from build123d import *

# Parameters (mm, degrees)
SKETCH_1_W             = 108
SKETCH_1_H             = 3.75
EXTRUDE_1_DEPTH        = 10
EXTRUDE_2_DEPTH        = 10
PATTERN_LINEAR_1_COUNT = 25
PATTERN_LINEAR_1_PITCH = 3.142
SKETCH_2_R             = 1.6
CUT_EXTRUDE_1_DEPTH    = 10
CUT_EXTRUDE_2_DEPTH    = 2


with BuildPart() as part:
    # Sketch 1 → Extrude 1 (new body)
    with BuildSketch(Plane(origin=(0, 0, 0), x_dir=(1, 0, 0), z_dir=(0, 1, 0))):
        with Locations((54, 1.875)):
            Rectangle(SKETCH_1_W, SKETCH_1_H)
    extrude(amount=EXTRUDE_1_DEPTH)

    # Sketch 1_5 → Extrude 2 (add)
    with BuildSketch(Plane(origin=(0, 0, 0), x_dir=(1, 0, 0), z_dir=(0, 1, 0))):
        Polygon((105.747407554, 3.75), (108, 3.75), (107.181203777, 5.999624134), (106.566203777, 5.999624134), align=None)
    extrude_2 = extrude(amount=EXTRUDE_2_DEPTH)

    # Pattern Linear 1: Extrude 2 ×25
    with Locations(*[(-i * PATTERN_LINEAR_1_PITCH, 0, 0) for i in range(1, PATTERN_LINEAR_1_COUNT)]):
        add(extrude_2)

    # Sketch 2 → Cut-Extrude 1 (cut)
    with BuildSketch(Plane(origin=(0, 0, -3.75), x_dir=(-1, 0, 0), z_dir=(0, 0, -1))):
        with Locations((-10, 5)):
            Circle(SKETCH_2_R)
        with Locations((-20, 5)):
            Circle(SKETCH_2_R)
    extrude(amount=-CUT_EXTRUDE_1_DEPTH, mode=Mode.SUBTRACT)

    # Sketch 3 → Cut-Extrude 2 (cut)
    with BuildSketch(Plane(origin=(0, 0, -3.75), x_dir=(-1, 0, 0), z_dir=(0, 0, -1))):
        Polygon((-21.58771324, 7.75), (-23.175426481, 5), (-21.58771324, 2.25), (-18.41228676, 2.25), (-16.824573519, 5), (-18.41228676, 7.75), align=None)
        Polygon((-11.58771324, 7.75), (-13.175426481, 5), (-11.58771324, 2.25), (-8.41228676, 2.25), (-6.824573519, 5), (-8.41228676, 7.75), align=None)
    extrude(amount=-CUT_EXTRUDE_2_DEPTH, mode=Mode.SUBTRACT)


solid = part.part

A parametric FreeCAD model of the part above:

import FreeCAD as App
import Part
import Sketcher

V = App.Vector
Q = App.Units.Quantity


def add_polygon(sketch, points):
    """Adds a closed chain of lines whose ends are joined by coincident constraints."""
    first, n = sketch.GeometryCount, len(points)
    for a, b in zip(points, points[1:] + points[:1]):
        sketch.addGeometry(Part.LineSegment(App.Vector(*a, 0), App.Vector(*b, 0)), False)
    for i in range(n):
        sketch.addConstraint(Sketcher.Constraint("Coincident", first + i, 2, first + (i + 1) % n, 1))

doc = App.newDocument("Part")
params = doc.addObject("Spreadsheet::Sheet", "Params")
for row, (alias, value) in enumerate([
    ("sketch1_width", "108 mm"),
    ("sketch1_height", "3.75 mm"),
    ("pad1_length", "10 mm"),
    ("pad2_length", "10 mm"),
    ("linearpattern_pitch", "3.142 mm"),
    ("sketch3_diameter", "3.2 mm"),
    ("pocket1_length", "10 mm"),
    ("pocket2_length", "2 mm"),
], start=1):
    params.set(f"A{row}", alias)
    params.set(f"B{row}", "=" + value)
    params.setAlias(f"B{row}", alias)

body = doc.addObject("PartDesign::Body", "Body")

# Sketch on XZ plane
sketch1 = body.newObject("Sketcher::SketchObject", "Sketch")
sketch1.AttachmentSupport = (doc.getObject("XZ_Plane"), [""])
sketch1.MapMode = "FlatFace"
add_polygon(sketch1, [(0, -3.8), (0, 0), (108, 0), (108, -3.8)])  # lines 0-3
sketch1.addConstraint(Sketcher.Constraint("Vertical", 0))
sketch1.addConstraint(Sketcher.Constraint("Horizontal", 1))
sketch1.addConstraint(Sketcher.Constraint("Vertical", 2))
sketch1.addConstraint(Sketcher.Constraint("Horizontal", 3))
sketch1.addConstraint(Sketcher.Constraint("Coincident", 0, 2, -1, 1))
sketch1.addConstraint(Sketcher.Constraint("DistanceX", 1, 1, 1, 2, 108.0))
sketch1.addConstraint(Sketcher.Constraint("DistanceY", 0, 1, 0, 2, 3.75))
sketch1.setExpression("Constraints[9]", "Params.sketch1_width")
sketch1.setExpression("Constraints[10]", "Params.sketch1_height")
pad1 = body.newObject("PartDesign::Pad", "Pad")
pad1.Profile = sketch1
pad1.setExpression("Length", "Params.pad1_length")
pad1.Reversed = True

# Sketch on XZ plane
sketch2 = body.newObject("Sketcher::SketchObject", "Sketch001")
sketch2.AttachmentSupport = (doc.getObject("XZ_Plane"), [""])
sketch2.MapMode = "FlatFace"
add_polygon(sketch2, [(105.7, -3.8), (108, -3.8), (107.2, -6), (106.6, -6)])  # lines 0-3
sketch2.addConstraint(Sketcher.Constraint("Horizontal", 0))
sketch2.addConstraint(Sketcher.Constraint("Horizontal", 2))
sketch2.addConstraint(Sketcher.Constraint("Equal", 1, 3))
sketch2.addConstraint(Sketcher.Constraint("Angle", 1, Q("-110 deg")))
sketch2.addConstraint(Sketcher.Constraint("DistanceX", -1, 1, 0, 2, 108.0))
sketch2.addConstraint(Sketcher.Constraint("DistanceX", 2, 2, 2, 1, 0.615))
sketch2.addConstraint(Sketcher.Constraint("DistanceY", 0, 2, -1, 1, 3.75))
sketch2.addConstraint(Sketcher.Constraint("Distance", 1, 2.394))
pad2 = body.newObject("PartDesign::Pad", "Pad001")
pad2.Profile = sketch2
pad2.setExpression("Length", "Params.pad2_length")
pad2.Reversed = True
doc.recompute()

linearpattern = body.newObject("PartDesign::LinearPattern", "LinearPattern")
linearpattern.Originals = [pad2]
linearpattern.Direction = (doc.getObject("X_Axis"), [""])
linearpattern.Mode = "offset"
linearpattern.setExpression("Offset", "Params.linearpattern_pitch")
linearpattern.Occurrences = 25
linearpattern.Reversed = True
body.Tip = linearpattern

# Sketch on XY plane
sketch3 = body.newObject("Sketcher::SketchObject", "Sketch002")
sketch3.AttachmentSupport = (doc.getObject("XY_Plane"), [""])
sketch3.MapMode = "FlatFace"
sketch3.AttachmentOffset = App.Placement(V(0, 0, -3.75), App.Rotation())
sketch3.addGeometry(Part.Circle(V(10, 5, 0), V(0, 0, 1), 1.6), False)
sketch3.addGeometry(Part.Circle(V(20, 5, 0), V(0, 0, 1), 1.6), False)
sketch3.addConstraint(Sketcher.Constraint("Equal", 0, 1))
sketch3.addConstraint(Sketcher.Constraint("Horizontal", 0, 3, 1, 3))
sketch3.addConstraint(Sketcher.Constraint("Diameter", 0, 3.2))
sketch3.addConstraint(Sketcher.Constraint("DistanceX", -1, 1, 0, 3, 10.0))
sketch3.addConstraint(Sketcher.Constraint("DistanceY", -1, 1, 0, 3, 5.0))
sketch3.addConstraint(Sketcher.Constraint("DistanceX", -1, 1, 1, 3, 20.0))
sketch3.setExpression("Constraints[2]", "Params.sketch3_diameter")
pocket1 = body.newObject("PartDesign::Pocket", "Pocket")
pocket1.Profile = sketch3
pocket1.setExpression("Length", "Params.pocket1_length")
pocket1.Reversed = True

# Sketch on XY plane
sketch4 = body.newObject("Sketcher::SketchObject", "Sketch003")
sketch4.AttachmentSupport = (doc.getObject("XY_Plane"), [""])
sketch4.MapMode = "FlatFace"
sketch4.AttachmentOffset = App.Placement(V(0, 0, -3.75), App.Rotation())
add_polygon(sketch4, [(21.6, 7.8), (23.2, 5), (21.6, 2.2), (18.4, 2.2), (16.8, 5), (18.4, 7.8)])  # lines 0-5
add_polygon(sketch4, [(11.6, 7.8), (13.2, 5), (11.6, 2.2), (8.4, 2.2), (6.8, 5), (8.4, 7.8)])  # lines 6-11
sketch4.addConstraint(Sketcher.Constraint("Horizontal", 2))
sketch4.addConstraint(Sketcher.Constraint("Horizontal", 5))
sketch4.addConstraint(Sketcher.Constraint("Horizontal", 8))
sketch4.addConstraint(Sketcher.Constraint("Horizontal", 11))
sketch4.addConstraint(Sketcher.Constraint("Parallel", 0, 3))
sketch4.addConstraint(Sketcher.Constraint("Parallel", 1, 4))
sketch4.addConstraint(Sketcher.Constraint("Parallel", 3, 6))
sketch4.addConstraint(Sketcher.Constraint("Parallel", 4, 7))
sketch4.addConstraint(Sketcher.Constraint("Parallel", 6, 9))
sketch4.addConstraint(Sketcher.Constraint("Parallel", 7, 10))
sketch4.addConstraint(Sketcher.Constraint("Horizontal", 0, 2, 3, 2))
sketch4.addConstraint(Sketcher.Constraint("Horizontal", 3, 2, 6, 2))
sketch4.addConstraint(Sketcher.Constraint("Horizontal", 2, 2, 7, 2))
sketch4.addConstraint(Sketcher.Constraint("Horizontal", 6, 2, 9, 2))
sketch4.addConstraint(Sketcher.Constraint("Horizontal", 5, 2, 10, 2))
sketch4.addConstraint(Sketcher.Constraint("Vertical", 2, 2, 4, 2))
sketch4.addConstraint(Sketcher.Constraint("Vertical", 1, 2, 5, 2))
sketch4.addConstraint(Sketcher.Constraint("Equal", 5, 8))
sketch4.addConstraint(Sketcher.Constraint("Angle", 0, Q("-60 deg")))
sketch4.addConstraint(Sketcher.Constraint("DistanceY", -1, 1, 0, 2, 5.0))
sketch4.addConstraint(Sketcher.Constraint("DistanceX", 7, 2, 1, 2, 10.0))
sketch4.addConstraint(Sketcher.Constraint("DistanceY", 2, 2, 4, 2, 5.5))
sketch4.addConstraint(Sketcher.Constraint("DistanceX", 2, 2, 2, 1, 3.175426))
sketch4.addConstraint(Sketcher.Constraint("DistanceX", -1, 1, 0, 2, 23.175426))
pocket2 = body.newObject("PartDesign::Pocket", "Pocket001")
pocket2.Profile = sketch4
pocket2.setExpression("Length", "Params.pocket2_length")
pocket2.Reversed = True

doc.recompute()
